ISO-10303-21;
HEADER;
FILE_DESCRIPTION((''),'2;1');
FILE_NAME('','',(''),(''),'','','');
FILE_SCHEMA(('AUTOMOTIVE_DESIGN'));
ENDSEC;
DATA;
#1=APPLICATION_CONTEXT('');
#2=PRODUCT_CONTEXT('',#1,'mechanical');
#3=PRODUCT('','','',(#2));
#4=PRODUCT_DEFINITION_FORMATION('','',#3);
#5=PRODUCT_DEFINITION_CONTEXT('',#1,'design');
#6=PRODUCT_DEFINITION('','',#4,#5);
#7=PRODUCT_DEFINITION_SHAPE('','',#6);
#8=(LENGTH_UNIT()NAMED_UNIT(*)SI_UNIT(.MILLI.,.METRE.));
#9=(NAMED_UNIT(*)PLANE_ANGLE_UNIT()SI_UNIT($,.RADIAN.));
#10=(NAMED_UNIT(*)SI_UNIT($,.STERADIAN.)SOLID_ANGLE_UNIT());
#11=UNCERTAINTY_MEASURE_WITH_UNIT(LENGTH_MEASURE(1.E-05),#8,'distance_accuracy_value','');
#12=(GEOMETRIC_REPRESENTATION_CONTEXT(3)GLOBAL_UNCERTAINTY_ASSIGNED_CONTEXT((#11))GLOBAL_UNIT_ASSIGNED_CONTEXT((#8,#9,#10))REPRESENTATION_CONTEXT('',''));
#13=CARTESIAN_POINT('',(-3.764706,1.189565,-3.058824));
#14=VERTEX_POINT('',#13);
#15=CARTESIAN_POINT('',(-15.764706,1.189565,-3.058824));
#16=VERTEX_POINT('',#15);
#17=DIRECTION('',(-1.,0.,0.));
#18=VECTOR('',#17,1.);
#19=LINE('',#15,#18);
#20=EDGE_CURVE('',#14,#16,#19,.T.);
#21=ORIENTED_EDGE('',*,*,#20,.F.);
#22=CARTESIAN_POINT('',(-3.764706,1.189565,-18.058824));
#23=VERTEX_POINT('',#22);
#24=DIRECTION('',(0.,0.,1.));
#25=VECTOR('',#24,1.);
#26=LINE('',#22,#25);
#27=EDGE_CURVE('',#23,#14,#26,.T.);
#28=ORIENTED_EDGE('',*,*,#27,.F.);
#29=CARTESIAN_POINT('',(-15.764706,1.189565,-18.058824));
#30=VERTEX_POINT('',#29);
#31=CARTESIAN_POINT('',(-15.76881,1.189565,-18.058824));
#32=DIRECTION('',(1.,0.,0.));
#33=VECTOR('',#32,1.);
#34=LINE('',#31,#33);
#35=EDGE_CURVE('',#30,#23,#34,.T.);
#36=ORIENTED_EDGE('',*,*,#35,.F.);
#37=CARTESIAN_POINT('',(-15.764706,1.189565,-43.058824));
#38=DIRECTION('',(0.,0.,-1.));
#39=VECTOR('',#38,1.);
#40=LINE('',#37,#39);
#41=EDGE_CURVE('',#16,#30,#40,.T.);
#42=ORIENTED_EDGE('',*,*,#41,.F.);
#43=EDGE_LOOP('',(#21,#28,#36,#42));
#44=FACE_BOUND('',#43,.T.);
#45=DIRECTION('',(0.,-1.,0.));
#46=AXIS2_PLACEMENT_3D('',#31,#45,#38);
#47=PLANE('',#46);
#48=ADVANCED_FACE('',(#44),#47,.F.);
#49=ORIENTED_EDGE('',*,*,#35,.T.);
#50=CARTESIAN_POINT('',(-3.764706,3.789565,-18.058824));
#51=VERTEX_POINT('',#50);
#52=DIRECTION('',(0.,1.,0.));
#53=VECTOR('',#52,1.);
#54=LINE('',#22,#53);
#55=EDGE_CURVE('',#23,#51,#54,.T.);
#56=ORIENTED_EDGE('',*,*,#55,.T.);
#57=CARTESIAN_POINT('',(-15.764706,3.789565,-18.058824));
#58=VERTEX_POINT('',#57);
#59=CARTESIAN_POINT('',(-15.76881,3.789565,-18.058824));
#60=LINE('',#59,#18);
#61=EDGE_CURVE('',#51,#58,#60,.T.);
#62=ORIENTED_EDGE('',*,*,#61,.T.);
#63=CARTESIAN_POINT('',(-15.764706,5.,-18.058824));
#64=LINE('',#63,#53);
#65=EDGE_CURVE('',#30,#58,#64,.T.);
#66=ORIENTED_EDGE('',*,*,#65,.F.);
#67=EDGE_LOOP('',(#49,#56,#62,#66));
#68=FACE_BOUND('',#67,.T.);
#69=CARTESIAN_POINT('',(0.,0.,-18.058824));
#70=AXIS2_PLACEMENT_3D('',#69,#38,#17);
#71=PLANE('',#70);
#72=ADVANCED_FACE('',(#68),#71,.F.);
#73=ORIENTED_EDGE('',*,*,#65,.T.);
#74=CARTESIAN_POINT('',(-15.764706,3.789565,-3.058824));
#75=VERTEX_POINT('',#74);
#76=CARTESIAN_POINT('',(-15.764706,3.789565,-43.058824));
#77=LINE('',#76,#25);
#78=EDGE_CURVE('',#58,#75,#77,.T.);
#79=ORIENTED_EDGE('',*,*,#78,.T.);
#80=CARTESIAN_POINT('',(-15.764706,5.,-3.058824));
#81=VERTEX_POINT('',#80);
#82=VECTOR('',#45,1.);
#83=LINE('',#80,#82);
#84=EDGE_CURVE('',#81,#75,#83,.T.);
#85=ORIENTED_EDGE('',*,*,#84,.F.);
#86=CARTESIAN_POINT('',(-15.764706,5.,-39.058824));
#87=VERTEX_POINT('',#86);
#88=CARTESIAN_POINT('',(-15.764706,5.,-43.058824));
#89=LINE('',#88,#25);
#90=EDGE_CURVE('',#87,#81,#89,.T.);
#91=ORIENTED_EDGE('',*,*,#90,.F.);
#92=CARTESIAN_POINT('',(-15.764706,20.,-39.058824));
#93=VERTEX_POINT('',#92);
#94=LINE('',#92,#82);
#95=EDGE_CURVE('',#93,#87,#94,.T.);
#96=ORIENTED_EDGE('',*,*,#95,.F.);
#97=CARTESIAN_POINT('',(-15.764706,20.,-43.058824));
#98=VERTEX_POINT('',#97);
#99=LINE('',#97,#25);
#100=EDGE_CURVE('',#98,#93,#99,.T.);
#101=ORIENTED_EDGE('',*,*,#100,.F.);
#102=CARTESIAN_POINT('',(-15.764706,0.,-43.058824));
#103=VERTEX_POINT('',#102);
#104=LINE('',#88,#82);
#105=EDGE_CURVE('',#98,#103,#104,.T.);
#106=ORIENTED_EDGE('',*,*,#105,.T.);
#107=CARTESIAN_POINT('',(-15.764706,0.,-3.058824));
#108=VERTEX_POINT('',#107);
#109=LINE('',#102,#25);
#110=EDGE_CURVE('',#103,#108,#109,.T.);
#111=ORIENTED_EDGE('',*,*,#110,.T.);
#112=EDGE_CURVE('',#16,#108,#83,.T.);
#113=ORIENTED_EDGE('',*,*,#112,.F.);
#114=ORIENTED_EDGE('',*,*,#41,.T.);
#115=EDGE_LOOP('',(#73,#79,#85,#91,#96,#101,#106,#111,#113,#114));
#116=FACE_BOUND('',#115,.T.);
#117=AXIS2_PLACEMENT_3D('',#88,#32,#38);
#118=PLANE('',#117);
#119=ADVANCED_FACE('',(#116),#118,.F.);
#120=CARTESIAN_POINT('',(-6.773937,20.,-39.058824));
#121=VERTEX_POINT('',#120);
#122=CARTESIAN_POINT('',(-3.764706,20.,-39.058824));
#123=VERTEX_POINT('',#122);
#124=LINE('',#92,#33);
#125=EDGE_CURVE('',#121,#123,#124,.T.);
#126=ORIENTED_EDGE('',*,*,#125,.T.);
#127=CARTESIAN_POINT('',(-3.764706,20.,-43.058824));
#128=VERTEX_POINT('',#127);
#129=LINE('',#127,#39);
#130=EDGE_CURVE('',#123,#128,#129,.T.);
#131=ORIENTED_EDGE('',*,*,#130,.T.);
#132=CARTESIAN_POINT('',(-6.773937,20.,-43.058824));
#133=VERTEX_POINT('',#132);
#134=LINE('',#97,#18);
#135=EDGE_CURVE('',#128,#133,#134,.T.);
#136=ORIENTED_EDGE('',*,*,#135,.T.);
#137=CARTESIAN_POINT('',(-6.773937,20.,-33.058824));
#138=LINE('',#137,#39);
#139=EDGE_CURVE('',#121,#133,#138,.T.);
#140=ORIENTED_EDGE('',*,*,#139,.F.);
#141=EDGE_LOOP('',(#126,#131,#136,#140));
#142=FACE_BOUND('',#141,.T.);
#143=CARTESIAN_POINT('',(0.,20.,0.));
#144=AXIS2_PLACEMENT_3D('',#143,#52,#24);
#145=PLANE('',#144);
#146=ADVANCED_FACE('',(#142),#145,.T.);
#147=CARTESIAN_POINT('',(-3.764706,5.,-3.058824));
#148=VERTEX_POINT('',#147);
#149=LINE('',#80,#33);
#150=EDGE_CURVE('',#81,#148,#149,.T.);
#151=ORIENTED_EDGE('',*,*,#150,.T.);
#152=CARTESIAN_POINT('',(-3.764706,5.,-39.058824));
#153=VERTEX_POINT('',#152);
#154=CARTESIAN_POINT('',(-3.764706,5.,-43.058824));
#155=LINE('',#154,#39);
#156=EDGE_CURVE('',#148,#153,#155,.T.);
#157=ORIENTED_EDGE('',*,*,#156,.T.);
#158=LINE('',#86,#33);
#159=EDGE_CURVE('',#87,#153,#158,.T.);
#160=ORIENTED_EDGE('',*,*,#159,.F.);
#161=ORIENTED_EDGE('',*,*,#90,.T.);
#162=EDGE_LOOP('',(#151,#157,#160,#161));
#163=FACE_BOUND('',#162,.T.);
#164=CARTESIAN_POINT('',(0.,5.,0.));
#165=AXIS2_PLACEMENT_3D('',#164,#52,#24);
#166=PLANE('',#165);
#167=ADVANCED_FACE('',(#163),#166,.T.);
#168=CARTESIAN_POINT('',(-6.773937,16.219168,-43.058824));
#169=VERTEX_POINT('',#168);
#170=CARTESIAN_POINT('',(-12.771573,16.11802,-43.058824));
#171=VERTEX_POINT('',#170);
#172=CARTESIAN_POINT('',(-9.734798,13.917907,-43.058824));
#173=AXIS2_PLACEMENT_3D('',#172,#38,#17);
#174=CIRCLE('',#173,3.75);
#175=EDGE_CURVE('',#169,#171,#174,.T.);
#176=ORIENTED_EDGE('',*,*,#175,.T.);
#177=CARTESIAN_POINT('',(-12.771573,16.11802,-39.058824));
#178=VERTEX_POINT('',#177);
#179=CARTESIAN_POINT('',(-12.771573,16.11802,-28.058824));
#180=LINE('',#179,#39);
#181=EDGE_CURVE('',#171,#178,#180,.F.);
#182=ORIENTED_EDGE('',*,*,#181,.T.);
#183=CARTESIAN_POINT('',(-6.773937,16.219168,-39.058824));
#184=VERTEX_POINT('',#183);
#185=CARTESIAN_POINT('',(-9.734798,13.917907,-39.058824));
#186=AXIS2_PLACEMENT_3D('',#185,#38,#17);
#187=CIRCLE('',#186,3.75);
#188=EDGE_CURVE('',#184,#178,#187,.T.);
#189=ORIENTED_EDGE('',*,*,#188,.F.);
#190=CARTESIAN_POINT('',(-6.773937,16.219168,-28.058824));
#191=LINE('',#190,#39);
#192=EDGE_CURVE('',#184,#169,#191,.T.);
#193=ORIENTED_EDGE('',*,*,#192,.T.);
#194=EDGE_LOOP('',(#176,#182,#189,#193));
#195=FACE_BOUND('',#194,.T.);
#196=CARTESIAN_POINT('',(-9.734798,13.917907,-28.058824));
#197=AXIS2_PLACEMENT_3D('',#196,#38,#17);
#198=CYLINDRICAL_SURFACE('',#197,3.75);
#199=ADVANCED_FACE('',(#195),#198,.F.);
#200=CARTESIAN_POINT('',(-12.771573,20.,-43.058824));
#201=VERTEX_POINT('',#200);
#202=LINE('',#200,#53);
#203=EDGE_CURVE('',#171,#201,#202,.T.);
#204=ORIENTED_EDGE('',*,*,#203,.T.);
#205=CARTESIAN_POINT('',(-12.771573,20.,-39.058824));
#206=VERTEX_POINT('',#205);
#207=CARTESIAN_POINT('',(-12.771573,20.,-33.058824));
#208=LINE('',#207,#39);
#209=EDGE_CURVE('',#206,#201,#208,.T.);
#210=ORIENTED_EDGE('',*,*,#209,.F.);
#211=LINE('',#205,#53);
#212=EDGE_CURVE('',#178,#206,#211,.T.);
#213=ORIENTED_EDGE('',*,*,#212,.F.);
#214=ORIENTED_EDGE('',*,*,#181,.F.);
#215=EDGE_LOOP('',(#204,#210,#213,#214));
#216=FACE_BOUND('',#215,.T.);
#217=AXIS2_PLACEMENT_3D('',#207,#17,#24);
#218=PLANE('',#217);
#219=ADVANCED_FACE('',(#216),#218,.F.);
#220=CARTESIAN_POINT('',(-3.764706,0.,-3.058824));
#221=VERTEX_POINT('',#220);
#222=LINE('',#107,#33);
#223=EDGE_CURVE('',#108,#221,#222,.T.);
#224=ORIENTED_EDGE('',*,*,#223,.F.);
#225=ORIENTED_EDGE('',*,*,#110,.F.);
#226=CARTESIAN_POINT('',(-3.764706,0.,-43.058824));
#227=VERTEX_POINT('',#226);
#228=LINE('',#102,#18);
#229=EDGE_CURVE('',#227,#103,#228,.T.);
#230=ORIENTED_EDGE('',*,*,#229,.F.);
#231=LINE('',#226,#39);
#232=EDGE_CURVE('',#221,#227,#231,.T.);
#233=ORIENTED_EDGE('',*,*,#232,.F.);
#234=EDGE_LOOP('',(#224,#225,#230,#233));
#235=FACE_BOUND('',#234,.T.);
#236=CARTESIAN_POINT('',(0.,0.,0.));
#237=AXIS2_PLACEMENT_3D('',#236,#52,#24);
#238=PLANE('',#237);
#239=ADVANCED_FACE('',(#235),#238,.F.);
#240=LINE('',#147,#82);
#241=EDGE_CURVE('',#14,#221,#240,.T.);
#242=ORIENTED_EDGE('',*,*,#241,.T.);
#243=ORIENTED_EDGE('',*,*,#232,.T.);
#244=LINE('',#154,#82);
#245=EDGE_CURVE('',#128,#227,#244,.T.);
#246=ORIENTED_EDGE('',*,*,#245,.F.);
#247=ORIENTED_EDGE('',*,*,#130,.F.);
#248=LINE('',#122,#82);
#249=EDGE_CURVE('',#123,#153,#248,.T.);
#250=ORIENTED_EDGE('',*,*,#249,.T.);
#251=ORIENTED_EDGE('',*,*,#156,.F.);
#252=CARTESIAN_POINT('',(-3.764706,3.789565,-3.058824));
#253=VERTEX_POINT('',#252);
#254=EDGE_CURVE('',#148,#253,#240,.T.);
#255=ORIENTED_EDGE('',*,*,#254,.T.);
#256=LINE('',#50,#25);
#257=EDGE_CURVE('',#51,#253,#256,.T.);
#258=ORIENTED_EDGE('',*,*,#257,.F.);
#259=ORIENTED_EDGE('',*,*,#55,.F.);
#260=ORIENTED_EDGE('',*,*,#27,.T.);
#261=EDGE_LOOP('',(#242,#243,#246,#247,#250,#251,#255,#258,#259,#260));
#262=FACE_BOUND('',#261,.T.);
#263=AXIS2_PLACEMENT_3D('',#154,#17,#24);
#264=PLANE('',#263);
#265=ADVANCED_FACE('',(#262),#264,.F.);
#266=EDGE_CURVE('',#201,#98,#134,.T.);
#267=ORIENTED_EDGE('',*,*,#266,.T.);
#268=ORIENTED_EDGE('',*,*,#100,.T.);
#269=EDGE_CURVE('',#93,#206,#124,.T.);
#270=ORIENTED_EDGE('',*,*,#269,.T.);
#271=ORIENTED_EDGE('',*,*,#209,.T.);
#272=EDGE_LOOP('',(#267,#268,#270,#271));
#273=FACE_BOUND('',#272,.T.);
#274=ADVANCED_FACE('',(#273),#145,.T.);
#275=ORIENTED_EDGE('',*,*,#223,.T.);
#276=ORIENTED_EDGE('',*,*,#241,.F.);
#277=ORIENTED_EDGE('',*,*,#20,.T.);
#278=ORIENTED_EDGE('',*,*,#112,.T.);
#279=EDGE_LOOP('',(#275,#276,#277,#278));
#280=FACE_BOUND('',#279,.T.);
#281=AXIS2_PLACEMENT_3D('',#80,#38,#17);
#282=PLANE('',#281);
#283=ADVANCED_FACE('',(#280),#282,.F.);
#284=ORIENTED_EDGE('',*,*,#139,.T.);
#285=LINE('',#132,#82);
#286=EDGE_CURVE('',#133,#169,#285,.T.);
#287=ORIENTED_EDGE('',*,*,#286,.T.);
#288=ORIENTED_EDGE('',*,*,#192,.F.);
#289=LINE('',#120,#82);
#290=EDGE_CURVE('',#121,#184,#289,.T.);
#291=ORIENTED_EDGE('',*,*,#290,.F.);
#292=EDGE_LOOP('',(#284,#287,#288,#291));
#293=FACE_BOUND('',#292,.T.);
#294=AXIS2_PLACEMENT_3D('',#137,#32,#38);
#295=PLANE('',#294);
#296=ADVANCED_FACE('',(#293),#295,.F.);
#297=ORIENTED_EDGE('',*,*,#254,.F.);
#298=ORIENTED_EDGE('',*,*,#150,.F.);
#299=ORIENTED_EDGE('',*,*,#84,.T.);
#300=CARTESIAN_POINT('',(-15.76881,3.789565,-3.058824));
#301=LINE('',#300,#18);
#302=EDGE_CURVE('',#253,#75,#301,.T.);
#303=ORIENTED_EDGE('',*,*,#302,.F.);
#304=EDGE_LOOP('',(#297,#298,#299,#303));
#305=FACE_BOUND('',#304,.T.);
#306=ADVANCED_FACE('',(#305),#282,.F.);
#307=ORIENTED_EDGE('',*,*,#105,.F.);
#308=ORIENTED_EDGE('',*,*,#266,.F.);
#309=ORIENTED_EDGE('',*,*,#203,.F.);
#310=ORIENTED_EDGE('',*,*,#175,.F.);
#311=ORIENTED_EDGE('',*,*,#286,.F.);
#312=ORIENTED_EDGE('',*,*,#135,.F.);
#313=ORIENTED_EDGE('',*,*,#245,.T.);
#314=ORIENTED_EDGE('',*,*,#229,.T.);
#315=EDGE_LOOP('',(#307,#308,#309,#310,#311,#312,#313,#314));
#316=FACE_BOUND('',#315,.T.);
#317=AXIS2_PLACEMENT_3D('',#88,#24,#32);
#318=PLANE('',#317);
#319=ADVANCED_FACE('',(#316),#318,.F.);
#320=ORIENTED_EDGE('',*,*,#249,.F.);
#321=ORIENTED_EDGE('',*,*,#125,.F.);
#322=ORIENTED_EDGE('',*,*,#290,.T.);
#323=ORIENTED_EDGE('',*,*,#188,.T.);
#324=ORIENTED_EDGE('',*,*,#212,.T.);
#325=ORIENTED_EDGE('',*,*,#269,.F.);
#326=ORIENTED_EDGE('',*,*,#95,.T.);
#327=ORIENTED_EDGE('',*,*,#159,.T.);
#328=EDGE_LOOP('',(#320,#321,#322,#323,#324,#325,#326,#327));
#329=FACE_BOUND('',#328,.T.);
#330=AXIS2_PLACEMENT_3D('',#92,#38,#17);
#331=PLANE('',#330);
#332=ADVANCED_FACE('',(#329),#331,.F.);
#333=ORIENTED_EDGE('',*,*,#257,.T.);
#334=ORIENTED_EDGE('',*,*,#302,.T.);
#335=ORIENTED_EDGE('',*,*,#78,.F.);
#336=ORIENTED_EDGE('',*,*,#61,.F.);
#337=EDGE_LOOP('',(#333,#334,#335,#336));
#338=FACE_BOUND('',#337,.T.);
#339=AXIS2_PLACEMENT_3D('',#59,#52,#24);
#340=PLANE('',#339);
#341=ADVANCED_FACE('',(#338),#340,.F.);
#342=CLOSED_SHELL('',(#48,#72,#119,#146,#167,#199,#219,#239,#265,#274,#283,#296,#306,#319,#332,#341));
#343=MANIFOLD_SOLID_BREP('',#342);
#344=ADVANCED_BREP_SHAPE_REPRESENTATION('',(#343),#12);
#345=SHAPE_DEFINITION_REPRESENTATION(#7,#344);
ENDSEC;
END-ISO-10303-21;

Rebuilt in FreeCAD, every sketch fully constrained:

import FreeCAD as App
import Part
import Sketcher
from FreeCAD import Vector


def add_polygon(sketch, points):
    """Adds a closed chain of lines whose ends are joined by coincident constraints."""
    first, n = sketch.GeometryCount, len(points)
    for a, b in zip(points, points[1:] + points[:1]):
        sketch.addGeometry(Part.LineSegment(App.Vector(*a, 0), App.Vector(*b, 0)), False)
    for i in range(n):
        sketch.addConstraint(Sketcher.Constraint("Coincident", first + i, 2, first + (i + 1) % n, 1))

doc = App.newDocument("Part")
body = doc.addObject("PartDesign::Body", "Body")

sketch1 = body.newObject("Sketcher::SketchObject", "Sketch")
sketch1.AttachmentSupport = (doc.getObject("XZ_Plane"), [""])
sketch1.MapMode = "FlatFace"
add_polygon(sketch1, [(-15.764706, -43.058824), (-15.764706, -3.058824), (-3.764706, -3.058824), (-3.764706, -43.058824)])
sketch1.addConstraint([
    Sketcher.Constraint("Vertical", 0),
    Sketcher.Constraint("Horizontal", 1),
    Sketcher.Constraint("Vertical", 2),
    Sketcher.Constraint("Horizontal", 3),
    Sketcher.Constraint("DistanceX", 1, 1, 1, 2, 12.0),
    Sketcher.Constraint("DistanceY", 0, 1, 0, 2, 40.0),
    Sketcher.Constraint("DistanceX", 0, 2, -1, 1, 15.764706),
    Sketcher.Constraint("DistanceY", 0, 2, -1, 1, 3.058824),
])
pad1 = body.newObject("PartDesign::Pad", "Pad")
pad1.Profile = sketch1
pad1.Length = 5
pad1.Reversed = True

sketch2 = body.newObject("Sketcher::SketchObject", "Sketch001")
sketch2.AttachmentSupport = (doc.getObject("XY_Plane"), [""])
sketch2.MapMode = "FlatFace"
sketch2.AttachmentOffset = App.Placement(Vector(0, 0, -3.058824), App.Rotation())
add_polygon(sketch2, [(-15.76881, 3.789565), (-15.76881, 1.189565), (-3.764706, 1.189565), (-3.764706, 3.789565)])
sketch2.addConstraint([
    Sketcher.Constraint("Vertical", 0),
    Sketcher.Constraint("Horizontal", 1),
    Sketcher.Constraint("Vertical", 2),
    Sketcher.Constraint("Horizontal", 3),
    Sketcher.Constraint("DistanceY", 0, 2, 0, 1, 2.6),
    Sketcher.Constraint("DistanceX", 1, 1, 1, 2, 12.004104),
    Sketcher.Constraint("DistanceX", 0, 2, -1, 1, 15.76881),
    Sketcher.Constraint("DistanceY", -1, 1, 0, 2, 1.189565),
])
pocket1 = body.newObject("PartDesign::Pocket", "Pocket")
pocket1.Profile = sketch2
pocket1.Length = 15

sketch3 = body.newObject("Sketcher::SketchObject", "Sketch002")
sketch3.AttachmentSupport = (doc.getObject("XZ_Plane"), [""])
sketch3.MapMode = "FlatFace"
sketch3.AttachmentOffset = App.Placement(Vector(0, 0, -5), App.Rotation())
add_polygon(sketch3, [(-15.764706, -43.058824), (-15.764706, -39.058824), (-3.764706, -39.058824), (-3.764706, -43.058824)])
sketch3.addConstraint([
    Sketcher.Constraint("Vertical", 0),
    Sketcher.Constraint("Horizontal", 1),
    Sketcher.Constraint("Vertical", 2),
    Sketcher.Constraint("Horizontal", 3),
    Sketcher.Constraint("DistanceX", 1, 1, 1, 2, 12.0),
    Sketcher.Constraint("DistanceY", 0, 1, 0, 2, 4.0),
    Sketcher.Constraint("DistanceX", 0, 2, -1, 1, 15.764706),
    Sketcher.Constraint("DistanceY", 0, 2, -1, 1, 39.058824),
])
pad2 = body.newObject("PartDesign::Pad", "Pad001")
pad2.Profile = sketch3
pad2.Length = 15
pad2.Reversed = True

sketch4 = body.newObject("Sketcher::SketchObject", "Sketch003")
sketch4.AttachmentSupport = (doc.getObject("XY_Plane"), [""])
sketch4.MapMode = "FlatFace"
sketch4.AttachmentOffset = App.Placement(Vector(0, 0, -43.058824), App.Rotation())
sketch4.addGeometry(Part.Circle(Vector(-9.734798, 13.917907, 0), Vector(0, 0, 1), 3.75), False)
sketch4.addConstraint([
    Sketcher.Constraint("Diameter", 0, 7.5),
    Sketcher.Constraint("DistanceX", 0, 3, -1, 1, 9.734798),
    Sketcher.Constraint("DistanceY", -1, 1, 0, 3, 13.917907),
])
pocket2 = body.newObject("PartDesign::Pocket", "Pocket001")
pocket2.Profile = sketch4
pocket2.Length = 15
pocket2.Reversed = True

sketch5 = body.newObject("Sketcher::SketchObject", "Sketch004")
sketch5.AttachmentSupport = (doc.getObject("XY_Plane"), [""])
sketch5.MapMode = "FlatFace"
sketch5.AttachmentOffset = App.Placement(Vector(0, 0, -43.058824), App.Rotation())
add_polygon(sketch5, [(-6.773937, 20), (-6.773937, 16.11802), (-12.771573, 16.11802), (-12.771573, 20)])
sketch5.addConstraint([
    Sketcher.Constraint("Vertical", 0),
    Sketcher.Constraint("Horizontal", 1),
    Sketcher.Constraint("Vertical", 2),
    Sketcher.Constraint("Horizontal", 3),
    Sketcher.Constraint("DistanceY", -1, 1, 2, 2, 20.0),
    Sketcher.Constraint("DistanceY", 0, 2, 0, 1, 3.88198),
    Sketcher.Constraint("DistanceX", 1, 2, 1, 1, 5.997636),
    Sketcher.Constraint("DistanceX", 0, 2, -1, 1, 6.773937),
])
pocket3 = body.newObject("PartDesign::Pocket", "Pocket002")
pocket3.Profile = sketch5
pocket3.Length = 10
pocket3.Reversed = True

doc.recompute()
